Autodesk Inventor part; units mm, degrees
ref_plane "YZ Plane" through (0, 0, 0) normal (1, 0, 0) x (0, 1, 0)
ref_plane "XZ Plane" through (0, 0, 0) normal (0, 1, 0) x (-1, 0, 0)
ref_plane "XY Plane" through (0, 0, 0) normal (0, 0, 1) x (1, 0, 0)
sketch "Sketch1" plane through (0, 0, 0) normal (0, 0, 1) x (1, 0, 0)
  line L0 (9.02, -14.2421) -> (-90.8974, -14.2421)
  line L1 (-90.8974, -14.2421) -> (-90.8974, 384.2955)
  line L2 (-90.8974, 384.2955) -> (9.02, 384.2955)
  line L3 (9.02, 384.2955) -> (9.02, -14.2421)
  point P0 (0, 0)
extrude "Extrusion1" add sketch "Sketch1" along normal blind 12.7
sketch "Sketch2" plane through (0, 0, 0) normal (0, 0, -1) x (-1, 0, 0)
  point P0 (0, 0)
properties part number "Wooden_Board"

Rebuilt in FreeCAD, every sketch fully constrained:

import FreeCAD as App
import Part
import Sketcher

V = App.Vector
Q = App.Units.Quantity

doc = App.newDocument("Part")
body = doc.addObject("PartDesign::Body", "Body")

# Sketch on XY plane
sketch1 = body.newObject("Sketcher::SketchObject", "Sketch")
sketch1.AttachmentSupport = (doc.getObject("XY_Plane"), [""])
sketch1.MapMode = "FlatFace"
sketch1.addGeometry(Part.LineSegment(V(-91, -14, 0), V(9, -14, 0)), False)
sketch1.addGeometry(Part.LineSegment(V(9, -14, 0), V(9, 384, 0)), False)
sketch1.addGeometry(Part.LineSegment(V(9, 384, 0), V(-91, 384, 0)), False)
sketch1.addGeometry(Part.LineSegment(V(-91, 384, 0), V(-91, -14, 0)), False)
sketch1.addConstraint(Sketcher.Constraint("Coincident", 0, 2, 1, 1))
sketch1.addConstraint(Sketcher.Constraint("Coincident", 1, 2, 2, 1))
sketch1.addConstraint(Sketcher.Constraint("Coincident", 2, 2, 3, 1))
sketch1.addConstraint(Sketcher.Constraint("Coincident", 3, 2, 0, 1))
sketch1.addConstraint(Sketcher.Constraint("Horizontal", 0))
sketch1.addConstraint(Sketcher.Constraint("Vertical", 1))
sketch1.addConstraint(Sketcher.Constraint("Horizontal", 2))
sketch1.addConstraint(Sketcher.Constraint("Vertical", 3))
sketch1.addConstraint(Sketcher.Constraint("DistanceX", 0, 1, 0, 2, 99.9174))
sketch1.addConstraint(Sketcher.Constraint("DistanceY", 1, 1, 1, 2, 398.5376))
sketch1.addConstraint(Sketcher.Constraint("DistanceX", -1, 1, 0, 2, 9.02))
sketch1.addConstraint(Sketcher.Constraint("DistanceY", 0, 2, -1, 1, Q("0.5607087 in")))
pad1 = body.newObject("PartDesign::Pad", "Pad")
pad1.Profile = sketch1
pad1.Length = Q("0.5 in")

doc.recompute()
